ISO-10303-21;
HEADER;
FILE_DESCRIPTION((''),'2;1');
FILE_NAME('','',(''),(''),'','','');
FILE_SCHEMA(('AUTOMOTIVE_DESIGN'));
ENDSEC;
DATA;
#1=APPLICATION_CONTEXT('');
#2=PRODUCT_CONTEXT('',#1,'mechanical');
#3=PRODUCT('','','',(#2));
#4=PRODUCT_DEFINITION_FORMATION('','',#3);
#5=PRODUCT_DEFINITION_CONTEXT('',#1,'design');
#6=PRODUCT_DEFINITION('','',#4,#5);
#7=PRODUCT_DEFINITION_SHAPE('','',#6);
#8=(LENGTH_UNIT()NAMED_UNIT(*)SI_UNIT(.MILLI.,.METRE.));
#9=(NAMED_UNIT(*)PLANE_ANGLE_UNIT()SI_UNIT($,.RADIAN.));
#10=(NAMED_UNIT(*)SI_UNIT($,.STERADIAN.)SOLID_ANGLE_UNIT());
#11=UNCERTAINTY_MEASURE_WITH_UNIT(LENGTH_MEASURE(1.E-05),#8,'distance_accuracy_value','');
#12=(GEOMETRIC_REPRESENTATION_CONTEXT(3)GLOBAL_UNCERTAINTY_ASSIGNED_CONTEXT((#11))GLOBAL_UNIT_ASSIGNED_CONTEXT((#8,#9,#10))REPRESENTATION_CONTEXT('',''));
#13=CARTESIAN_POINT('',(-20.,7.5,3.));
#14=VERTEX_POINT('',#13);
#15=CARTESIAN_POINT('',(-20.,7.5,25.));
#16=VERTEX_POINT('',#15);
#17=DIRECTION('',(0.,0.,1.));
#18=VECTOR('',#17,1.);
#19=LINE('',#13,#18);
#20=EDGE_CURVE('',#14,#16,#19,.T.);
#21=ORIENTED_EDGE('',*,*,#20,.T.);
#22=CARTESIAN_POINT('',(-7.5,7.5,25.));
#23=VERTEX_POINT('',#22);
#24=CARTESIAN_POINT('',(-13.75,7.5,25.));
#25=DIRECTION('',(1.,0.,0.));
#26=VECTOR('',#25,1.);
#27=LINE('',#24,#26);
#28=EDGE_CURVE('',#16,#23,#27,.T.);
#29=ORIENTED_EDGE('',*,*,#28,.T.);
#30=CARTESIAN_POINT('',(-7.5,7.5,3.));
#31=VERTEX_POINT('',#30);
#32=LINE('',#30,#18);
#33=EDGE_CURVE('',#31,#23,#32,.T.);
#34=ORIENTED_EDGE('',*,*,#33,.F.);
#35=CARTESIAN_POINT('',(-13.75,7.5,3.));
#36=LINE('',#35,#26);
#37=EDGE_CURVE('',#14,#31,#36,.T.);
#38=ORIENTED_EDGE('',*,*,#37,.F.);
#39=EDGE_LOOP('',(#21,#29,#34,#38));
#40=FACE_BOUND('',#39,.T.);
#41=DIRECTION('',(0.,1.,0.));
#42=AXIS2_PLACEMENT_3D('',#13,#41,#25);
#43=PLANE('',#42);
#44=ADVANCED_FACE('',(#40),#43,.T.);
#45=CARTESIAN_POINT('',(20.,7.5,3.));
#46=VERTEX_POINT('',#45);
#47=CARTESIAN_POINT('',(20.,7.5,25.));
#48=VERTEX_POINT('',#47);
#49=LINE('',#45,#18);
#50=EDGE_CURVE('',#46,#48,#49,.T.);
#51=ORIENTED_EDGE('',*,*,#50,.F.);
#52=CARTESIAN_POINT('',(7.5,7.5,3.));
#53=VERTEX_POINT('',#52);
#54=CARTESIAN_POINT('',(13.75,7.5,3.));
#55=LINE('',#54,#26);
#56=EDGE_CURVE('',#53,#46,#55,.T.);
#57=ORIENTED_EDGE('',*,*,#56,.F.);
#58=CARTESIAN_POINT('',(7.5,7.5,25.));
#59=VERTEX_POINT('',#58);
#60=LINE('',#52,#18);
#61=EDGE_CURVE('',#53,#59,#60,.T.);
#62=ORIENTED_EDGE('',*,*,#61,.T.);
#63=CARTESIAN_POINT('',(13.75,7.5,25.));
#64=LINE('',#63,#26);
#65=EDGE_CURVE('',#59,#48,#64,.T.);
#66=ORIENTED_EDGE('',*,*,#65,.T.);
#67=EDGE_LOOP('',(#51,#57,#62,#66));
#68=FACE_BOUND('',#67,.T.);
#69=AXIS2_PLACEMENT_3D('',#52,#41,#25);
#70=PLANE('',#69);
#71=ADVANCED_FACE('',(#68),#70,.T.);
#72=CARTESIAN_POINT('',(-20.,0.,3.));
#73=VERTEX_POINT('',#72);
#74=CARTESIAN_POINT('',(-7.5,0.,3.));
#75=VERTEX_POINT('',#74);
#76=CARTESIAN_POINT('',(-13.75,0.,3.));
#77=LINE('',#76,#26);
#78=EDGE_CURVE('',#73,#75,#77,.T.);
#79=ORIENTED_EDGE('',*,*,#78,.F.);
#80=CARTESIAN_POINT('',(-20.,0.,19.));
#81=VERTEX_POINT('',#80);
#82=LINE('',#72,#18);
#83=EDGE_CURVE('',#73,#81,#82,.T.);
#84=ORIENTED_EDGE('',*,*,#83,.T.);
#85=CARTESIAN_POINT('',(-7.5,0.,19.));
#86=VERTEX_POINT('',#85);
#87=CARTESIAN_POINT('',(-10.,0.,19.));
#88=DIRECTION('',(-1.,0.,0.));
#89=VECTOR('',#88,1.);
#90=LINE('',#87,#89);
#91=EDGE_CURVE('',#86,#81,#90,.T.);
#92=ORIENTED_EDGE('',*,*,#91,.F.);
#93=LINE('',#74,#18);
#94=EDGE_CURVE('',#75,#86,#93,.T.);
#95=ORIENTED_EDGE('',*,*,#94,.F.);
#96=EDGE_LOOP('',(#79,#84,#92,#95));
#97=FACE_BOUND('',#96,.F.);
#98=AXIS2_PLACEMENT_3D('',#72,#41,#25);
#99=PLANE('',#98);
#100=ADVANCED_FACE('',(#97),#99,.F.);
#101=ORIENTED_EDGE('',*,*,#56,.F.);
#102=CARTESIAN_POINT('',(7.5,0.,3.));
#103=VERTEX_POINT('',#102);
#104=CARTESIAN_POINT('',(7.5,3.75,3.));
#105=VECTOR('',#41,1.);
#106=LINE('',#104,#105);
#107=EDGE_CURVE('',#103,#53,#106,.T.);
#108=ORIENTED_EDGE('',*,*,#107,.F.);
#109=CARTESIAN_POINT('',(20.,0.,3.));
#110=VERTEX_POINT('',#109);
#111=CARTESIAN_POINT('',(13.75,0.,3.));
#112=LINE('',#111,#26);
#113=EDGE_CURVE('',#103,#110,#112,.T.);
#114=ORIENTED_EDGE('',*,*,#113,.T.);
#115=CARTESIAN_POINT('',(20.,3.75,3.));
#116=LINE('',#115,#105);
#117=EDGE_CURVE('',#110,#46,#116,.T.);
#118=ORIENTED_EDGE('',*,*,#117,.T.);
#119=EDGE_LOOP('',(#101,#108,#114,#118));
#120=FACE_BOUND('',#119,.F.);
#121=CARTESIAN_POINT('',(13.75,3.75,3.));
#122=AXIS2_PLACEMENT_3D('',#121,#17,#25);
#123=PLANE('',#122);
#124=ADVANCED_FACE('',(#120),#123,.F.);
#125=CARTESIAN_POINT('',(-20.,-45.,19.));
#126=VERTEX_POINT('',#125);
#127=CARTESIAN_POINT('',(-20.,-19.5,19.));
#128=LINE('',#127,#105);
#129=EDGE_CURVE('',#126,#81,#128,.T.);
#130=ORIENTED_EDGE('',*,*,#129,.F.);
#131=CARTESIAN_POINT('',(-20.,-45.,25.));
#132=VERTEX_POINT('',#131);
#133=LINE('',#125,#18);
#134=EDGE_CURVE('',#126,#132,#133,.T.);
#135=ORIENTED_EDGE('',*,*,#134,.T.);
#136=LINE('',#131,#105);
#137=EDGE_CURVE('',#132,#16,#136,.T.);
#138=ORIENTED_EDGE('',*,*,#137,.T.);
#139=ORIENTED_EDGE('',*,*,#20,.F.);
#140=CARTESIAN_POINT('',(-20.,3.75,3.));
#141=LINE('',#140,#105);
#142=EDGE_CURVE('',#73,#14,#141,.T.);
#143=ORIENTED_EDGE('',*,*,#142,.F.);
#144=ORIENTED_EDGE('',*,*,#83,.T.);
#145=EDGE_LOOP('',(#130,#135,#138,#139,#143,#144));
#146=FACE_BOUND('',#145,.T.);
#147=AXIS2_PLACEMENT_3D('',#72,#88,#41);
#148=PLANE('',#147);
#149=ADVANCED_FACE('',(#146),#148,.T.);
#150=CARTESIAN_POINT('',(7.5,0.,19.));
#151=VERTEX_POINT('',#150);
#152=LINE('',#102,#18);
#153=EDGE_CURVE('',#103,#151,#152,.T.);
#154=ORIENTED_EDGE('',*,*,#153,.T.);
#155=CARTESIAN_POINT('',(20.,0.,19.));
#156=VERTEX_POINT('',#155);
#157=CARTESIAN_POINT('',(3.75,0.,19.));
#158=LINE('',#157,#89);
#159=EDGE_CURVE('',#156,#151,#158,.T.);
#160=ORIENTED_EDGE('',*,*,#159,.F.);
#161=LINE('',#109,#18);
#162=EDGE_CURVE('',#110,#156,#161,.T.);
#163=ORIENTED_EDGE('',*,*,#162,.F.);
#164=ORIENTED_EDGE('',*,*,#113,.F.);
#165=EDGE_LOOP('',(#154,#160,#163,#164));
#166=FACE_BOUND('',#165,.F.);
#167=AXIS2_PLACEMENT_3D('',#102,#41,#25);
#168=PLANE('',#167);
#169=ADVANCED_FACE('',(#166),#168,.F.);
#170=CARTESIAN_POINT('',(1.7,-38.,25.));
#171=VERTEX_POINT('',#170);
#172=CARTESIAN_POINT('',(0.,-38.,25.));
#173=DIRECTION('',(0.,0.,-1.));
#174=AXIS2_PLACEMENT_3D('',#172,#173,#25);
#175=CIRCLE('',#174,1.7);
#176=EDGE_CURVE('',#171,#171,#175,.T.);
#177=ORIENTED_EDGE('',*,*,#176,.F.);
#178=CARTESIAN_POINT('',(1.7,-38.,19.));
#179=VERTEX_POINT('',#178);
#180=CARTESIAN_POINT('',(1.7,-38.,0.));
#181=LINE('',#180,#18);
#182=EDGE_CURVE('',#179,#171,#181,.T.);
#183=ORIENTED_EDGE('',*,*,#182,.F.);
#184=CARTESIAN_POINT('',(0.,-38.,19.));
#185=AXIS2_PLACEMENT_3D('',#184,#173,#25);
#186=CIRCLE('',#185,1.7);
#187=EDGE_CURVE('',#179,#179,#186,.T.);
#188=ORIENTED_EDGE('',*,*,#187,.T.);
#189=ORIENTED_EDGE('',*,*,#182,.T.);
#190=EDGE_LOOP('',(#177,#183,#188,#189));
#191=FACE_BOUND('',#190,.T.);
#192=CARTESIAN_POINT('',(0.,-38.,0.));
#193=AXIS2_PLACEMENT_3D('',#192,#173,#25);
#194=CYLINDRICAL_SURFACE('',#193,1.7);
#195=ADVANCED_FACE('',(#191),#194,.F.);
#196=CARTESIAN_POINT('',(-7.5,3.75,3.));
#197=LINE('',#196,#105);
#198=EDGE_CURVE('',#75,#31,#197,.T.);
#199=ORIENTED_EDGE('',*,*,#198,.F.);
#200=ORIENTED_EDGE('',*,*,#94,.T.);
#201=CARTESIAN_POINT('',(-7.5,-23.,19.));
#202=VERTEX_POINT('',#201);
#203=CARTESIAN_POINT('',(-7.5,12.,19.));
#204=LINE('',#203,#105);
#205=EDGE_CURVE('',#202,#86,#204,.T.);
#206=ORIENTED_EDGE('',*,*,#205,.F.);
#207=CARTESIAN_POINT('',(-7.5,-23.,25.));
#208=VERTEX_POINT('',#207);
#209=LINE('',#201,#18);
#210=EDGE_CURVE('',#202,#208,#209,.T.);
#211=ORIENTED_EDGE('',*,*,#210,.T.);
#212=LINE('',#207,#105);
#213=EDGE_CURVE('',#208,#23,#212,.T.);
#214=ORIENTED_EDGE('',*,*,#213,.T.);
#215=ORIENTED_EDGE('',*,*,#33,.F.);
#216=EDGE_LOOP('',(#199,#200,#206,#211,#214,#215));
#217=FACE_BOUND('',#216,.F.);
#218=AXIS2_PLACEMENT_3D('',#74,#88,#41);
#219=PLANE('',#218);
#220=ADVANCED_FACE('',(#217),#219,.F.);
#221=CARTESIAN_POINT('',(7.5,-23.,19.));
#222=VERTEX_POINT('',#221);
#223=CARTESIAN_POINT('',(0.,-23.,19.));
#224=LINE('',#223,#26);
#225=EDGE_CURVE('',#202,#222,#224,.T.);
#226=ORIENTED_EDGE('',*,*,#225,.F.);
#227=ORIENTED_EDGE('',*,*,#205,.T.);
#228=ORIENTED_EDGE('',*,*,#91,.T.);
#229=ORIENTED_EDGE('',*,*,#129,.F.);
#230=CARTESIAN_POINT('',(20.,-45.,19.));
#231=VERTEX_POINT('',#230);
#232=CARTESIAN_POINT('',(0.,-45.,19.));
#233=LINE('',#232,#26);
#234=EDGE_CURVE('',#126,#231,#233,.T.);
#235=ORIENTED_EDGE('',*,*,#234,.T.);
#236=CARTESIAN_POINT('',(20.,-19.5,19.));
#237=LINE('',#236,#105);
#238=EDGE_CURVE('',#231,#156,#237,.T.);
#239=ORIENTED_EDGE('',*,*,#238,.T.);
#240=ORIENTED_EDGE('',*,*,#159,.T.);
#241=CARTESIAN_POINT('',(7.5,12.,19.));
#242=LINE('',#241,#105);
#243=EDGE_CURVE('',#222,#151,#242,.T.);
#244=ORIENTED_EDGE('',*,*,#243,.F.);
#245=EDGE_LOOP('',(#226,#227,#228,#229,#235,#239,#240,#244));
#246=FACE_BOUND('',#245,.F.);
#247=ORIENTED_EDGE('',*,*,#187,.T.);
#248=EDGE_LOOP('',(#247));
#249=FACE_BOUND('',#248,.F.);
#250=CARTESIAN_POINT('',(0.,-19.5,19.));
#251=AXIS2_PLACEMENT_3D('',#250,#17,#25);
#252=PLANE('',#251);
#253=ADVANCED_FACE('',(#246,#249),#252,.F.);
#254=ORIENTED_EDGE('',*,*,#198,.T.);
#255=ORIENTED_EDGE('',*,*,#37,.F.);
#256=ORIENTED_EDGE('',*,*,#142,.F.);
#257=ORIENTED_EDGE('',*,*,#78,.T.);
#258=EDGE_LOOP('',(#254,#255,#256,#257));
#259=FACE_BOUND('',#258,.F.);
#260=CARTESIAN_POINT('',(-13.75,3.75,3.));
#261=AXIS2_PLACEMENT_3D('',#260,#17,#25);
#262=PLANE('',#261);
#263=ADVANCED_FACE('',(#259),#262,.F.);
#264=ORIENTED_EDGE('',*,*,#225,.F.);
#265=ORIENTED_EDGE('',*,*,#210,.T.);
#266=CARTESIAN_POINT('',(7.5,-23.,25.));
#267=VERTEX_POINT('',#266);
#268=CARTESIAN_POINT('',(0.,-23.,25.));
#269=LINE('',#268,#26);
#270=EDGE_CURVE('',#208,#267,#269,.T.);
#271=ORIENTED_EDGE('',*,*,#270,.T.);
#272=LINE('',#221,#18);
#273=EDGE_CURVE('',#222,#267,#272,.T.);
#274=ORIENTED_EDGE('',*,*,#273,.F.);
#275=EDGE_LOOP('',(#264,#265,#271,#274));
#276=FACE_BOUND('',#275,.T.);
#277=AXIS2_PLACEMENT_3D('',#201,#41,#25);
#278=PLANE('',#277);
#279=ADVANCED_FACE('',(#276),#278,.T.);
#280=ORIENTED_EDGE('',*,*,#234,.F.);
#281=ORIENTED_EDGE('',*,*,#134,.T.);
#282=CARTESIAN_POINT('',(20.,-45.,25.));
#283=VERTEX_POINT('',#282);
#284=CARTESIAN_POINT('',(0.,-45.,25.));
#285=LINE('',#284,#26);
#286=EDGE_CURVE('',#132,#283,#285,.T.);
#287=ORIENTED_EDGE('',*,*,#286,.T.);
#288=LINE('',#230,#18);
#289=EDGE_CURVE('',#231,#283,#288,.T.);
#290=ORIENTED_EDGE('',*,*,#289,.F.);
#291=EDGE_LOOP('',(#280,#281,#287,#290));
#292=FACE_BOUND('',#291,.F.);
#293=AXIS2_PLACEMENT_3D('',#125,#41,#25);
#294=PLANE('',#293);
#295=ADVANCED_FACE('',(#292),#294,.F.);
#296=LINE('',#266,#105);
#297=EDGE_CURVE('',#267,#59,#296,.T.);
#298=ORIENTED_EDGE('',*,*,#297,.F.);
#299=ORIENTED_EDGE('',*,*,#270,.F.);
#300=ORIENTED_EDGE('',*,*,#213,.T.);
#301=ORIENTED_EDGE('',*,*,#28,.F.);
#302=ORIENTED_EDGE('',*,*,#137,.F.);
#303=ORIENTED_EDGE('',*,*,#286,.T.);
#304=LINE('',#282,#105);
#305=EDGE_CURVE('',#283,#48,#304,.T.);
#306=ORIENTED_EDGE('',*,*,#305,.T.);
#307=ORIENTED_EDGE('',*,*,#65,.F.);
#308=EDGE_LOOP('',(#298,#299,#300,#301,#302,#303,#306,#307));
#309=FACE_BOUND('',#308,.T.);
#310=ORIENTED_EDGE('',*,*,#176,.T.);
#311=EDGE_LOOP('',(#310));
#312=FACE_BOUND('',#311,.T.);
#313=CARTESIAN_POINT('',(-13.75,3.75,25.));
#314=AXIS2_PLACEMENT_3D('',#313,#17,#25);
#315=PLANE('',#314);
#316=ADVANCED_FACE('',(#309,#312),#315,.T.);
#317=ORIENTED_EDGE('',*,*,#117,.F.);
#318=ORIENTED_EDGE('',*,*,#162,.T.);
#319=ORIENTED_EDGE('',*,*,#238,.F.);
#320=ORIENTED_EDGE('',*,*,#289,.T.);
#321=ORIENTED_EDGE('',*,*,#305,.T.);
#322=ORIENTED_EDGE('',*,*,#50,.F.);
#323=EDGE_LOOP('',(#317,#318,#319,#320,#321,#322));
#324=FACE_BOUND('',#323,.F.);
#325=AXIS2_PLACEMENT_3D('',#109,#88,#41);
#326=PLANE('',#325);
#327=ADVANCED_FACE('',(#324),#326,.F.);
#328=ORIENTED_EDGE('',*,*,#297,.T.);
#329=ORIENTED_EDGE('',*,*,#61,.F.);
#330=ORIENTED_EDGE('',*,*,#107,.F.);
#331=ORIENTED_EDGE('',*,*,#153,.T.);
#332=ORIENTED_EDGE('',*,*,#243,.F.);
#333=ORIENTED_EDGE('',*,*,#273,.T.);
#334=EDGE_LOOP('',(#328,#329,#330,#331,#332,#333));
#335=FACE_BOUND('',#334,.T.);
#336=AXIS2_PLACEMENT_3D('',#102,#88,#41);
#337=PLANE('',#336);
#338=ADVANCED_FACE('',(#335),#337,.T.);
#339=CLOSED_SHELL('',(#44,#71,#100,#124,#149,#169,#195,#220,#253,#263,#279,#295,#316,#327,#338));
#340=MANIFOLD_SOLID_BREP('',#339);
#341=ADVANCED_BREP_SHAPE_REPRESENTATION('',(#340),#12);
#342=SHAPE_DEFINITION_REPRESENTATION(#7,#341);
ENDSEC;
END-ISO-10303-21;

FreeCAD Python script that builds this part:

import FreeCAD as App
import Part
import Sketcher

V = App.Vector


def add_polygon(sketch, points):
    """Adds a closed chain of lines whose ends are joined by coincident constraints."""
    first, n = sketch.GeometryCount, len(points)
    for a, b in zip(points, points[1:] + points[:1]):
        sketch.addGeometry(Part.LineSegment(App.Vector(*a, 0), App.Vector(*b, 0)), False)
    for i in range(n):
        sketch.addConstraint(Sketcher.Constraint("Coincident", first + i, 2, first + (i + 1) % n, 1))

doc = App.newDocument("Part")
body = doc.addObject("PartDesign::Body", "Body")

# Sketch on XY plane
sketch1 = body.newObject("Sketcher::SketchObject", "Sketch")
sketch1.AttachmentSupport = (doc.getObject("XY_Plane"), [""])
sketch1.MapMode = "FlatFace"
sketch1.AttachmentOffset = App.Placement(V(0, 0, 3), App.Rotation())
add_polygon(sketch1, [(8, 8), (8, 0), (20, 0), (20, 8)])  # lines 0-3
sketch1.addConstraint(Sketcher.Constraint("Vertical", 0))
sketch1.addConstraint(Sketcher.Constraint("Horizontal", 1))
sketch1.addConstraint(Sketcher.Constraint("Vertical", 2))
sketch1.addConstraint(Sketcher.Constraint("Horizontal", 3))
sketch1.addConstraint(Sketcher.Constraint("PointOnObject", 0, 2, -1))
sketch1.addConstraint(Sketcher.Constraint("DistanceX", 1, 1, 1, 2, 12.5))
sketch1.addConstraint(Sketcher.Constraint("DistanceY", 0, 2, 0, 1, 7.5))
sketch1.addConstraint(Sketcher.Constraint("DistanceX", -1, 1, 1, 2, 20.0))
pad1 = body.newObject("PartDesign::Pad", "Pad")
pad1.Profile = sketch1
pad1.Length = 22
body2 = doc.addObject("PartDesign::Body", "Body001")

# Sketch on XY plane
sketch2 = body2.newObject("Sketcher::SketchObject", "Sketch001")
sketch2.AttachmentSupport = (doc.getObject("XY_Plane001"), [""])
sketch2.MapMode = "FlatFace"
sketch2.AttachmentOffset = App.Placement(V(0, 0, 3), App.Rotation())
add_polygon(sketch2, [(-20, 8), (-20, 0), (-8, 0), (-8, 8)])  # lines 0-3
sketch2.addConstraint(Sketcher.Constraint("Vertical", 0))
sketch2.addConstraint(Sketcher.Constraint("Horizontal", 1))
sketch2.addConstraint(Sketcher.Constraint("Vertical", 2))
sketch2.addConstraint(Sketcher.Constraint("Horizontal", 3))
sketch2.addConstraint(Sketcher.Constraint("PointOnObject", 0, 2, -1))
sketch2.addConstraint(Sketcher.Constraint("DistanceX", 1, 1, 1, 2, 12.5))
sketch2.addConstraint(Sketcher.Constraint("DistanceY", 0, 2, 0, 1, 7.5))
sketch2.addConstraint(Sketcher.Constraint("DistanceX", 0, 2, -1, 1, 20.0))
pad2 = body2.newObject("PartDesign::Pad", "Pad001")
pad2.Profile = sketch2
pad2.Length = 22
body3 = doc.addObject("PartDesign::Body", "Body002")

# Sketch on XY plane
sketch3 = body3.newObject("Sketcher::SketchObject", "Sketch002")
sketch3.AttachmentSupport = (doc.getObject("XY_Plane002"), [""])
sketch3.MapMode = "FlatFace"
sketch3.addGeometry(Part.Circle(V(0, 7, 0), V(0, 0, 1), 1.7), False)
sketch3.addConstraint(Sketcher.Constraint("PointOnObject", 0, 3, -2))
sketch3.addConstraint(Sketcher.Constraint("Diameter", 0, 3.4))
sketch3.addConstraint(Sketcher.Constraint("DistanceY", -1, 1, 0, 3, 7.0))
pad3 = body3.newObject("PartDesign::Pad", "Pad002")
pad3.Profile = sketch3
pad3.Length = 30
body4 = doc.addObject("PartDesign::Body", "Body003")

# Sketch on XY plane
sketch4 = body4.newObject("Sketcher::SketchObject", "Sketch003")
sketch4.AttachmentSupport = (doc.getObject("XY_Plane003"), [""])
sketch4.MapMode = "FlatFace"
sketch4.AttachmentOffset = App.Placement(V(0, 0, 20), App.Rotation())
add_polygon(sketch4, [(12, 92), (12, 22), (28, 22), (28, 92)])  # lines 0-3
sketch4.addConstraint(Sketcher.Constraint("Vertical", 0))
sketch4.addConstraint(Sketcher.Constraint("Horizontal", 1))
sketch4.addConstraint(Sketcher.Constraint("Vertical", 2))
sketch4.addConstraint(Sketcher.Constraint("Horizontal", 3))
sketch4.addConstraint(Sketcher.Constraint("DistanceX", 1, 1, 1, 2, 15.0))
sketch4.addConstraint(Sketcher.Constraint("DistanceY", 0, 2, 0, 1, 70.0))
sketch4.addConstraint(Sketcher.Constraint("DistanceY", -1, 1, 0, 2, 22.0))
sketch4.addConstraint(Sketcher.Constraint("DistanceX", -1, 1, 0, 2, 12.5))
pad4 = body4.newObject("PartDesign::Pad", "Pad003")
pad4.Profile = sketch4
pad4.Length = 6
body5 = doc.addObject("PartDesign::Body", "Body004")

# Sketch on XY plane
sketch5 = body5.newObject("Sketcher::SketchObject", "Sketch004")
sketch5.AttachmentSupport = (doc.getObject("XY_Plane004"), [""])
sketch5.MapMode = "FlatFace"
sketch5.AttachmentOffset = App.Placement(V(0, 0, 20), App.Rotation())
add_polygon(sketch5, [(0, 51), (0, 0), (40, 0), (40, 51)])  # lines 0-3
sketch5.addConstraint(Sketcher.Constraint("Vertical", 0))
sketch5.addConstraint(Sketcher.Constraint("Horizontal", 1))
sketch5.addConstraint(Sketcher.Constraint("Vertical", 2))
sketch5.addConstraint(Sketcher.Constraint("Horizontal", 3))
sketch5.addConstraint(Sketcher.Constraint("Coincident", 0, 2, -1, 1))
sketch5.addConstraint(Sketcher.Constraint("DistanceX", 1, 1, 1, 2, 40.0))
sketch5.addConstraint(Sketcher.Constraint("DistanceY", 0, 2, 0, 1, 51.0))
pad5 = body5.newObject("PartDesign::Pad", "Pad004")
pad5.Profile = sketch5
pad5.Length = 6
doc.recompute()

boolean = body5.newObject("PartDesign::Boolean", "Boolean")
boolean.Type = "Cut"
boolean.addObjects([body4])
body6 = doc.addObject("PartDesign::Body", "Body005")
doc.recompute()

body5.Placement = App.Placement(V(-20, 0, -1), App.Rotation(V(0, 0, 1), 0))
boolean2 = body6.newObject("PartDesign::Boolean", "Boolean001")
boolean2.Type = "Fuse"
boolean2.addObjects([body5])
doc.recompute()

boolean3 = body6.newObject("PartDesign::Boolean", "Boolean002")
boolean3.Type = "Cut"
boolean3.addObjects([body3])
body7 = doc.addObject("PartDesign::Body", "Body006")
doc.recompute()

body6.Placement = App.Placement(V(0, -45, 0), App.Rotation(V(0, 0, 1), 0))
boolean4 = body7.newObject("PartDesign::Boolean", "Boolean003")
boolean4.Type = "Fuse"
boolean4.addObjects([body6])
doc.recompute()

boolean5 = body7.newObject("PartDesign::Boolean", "Boolean004")
boolean5.Type = "Fuse"
boolean5.addObjects([body])
doc.recompute()

boolean6 = body7.newObject("PartDesign::Boolean", "Boolean005")
boolean6.Type = "Fuse"
boolean6.addObjects([body2])

doc.recompute()
